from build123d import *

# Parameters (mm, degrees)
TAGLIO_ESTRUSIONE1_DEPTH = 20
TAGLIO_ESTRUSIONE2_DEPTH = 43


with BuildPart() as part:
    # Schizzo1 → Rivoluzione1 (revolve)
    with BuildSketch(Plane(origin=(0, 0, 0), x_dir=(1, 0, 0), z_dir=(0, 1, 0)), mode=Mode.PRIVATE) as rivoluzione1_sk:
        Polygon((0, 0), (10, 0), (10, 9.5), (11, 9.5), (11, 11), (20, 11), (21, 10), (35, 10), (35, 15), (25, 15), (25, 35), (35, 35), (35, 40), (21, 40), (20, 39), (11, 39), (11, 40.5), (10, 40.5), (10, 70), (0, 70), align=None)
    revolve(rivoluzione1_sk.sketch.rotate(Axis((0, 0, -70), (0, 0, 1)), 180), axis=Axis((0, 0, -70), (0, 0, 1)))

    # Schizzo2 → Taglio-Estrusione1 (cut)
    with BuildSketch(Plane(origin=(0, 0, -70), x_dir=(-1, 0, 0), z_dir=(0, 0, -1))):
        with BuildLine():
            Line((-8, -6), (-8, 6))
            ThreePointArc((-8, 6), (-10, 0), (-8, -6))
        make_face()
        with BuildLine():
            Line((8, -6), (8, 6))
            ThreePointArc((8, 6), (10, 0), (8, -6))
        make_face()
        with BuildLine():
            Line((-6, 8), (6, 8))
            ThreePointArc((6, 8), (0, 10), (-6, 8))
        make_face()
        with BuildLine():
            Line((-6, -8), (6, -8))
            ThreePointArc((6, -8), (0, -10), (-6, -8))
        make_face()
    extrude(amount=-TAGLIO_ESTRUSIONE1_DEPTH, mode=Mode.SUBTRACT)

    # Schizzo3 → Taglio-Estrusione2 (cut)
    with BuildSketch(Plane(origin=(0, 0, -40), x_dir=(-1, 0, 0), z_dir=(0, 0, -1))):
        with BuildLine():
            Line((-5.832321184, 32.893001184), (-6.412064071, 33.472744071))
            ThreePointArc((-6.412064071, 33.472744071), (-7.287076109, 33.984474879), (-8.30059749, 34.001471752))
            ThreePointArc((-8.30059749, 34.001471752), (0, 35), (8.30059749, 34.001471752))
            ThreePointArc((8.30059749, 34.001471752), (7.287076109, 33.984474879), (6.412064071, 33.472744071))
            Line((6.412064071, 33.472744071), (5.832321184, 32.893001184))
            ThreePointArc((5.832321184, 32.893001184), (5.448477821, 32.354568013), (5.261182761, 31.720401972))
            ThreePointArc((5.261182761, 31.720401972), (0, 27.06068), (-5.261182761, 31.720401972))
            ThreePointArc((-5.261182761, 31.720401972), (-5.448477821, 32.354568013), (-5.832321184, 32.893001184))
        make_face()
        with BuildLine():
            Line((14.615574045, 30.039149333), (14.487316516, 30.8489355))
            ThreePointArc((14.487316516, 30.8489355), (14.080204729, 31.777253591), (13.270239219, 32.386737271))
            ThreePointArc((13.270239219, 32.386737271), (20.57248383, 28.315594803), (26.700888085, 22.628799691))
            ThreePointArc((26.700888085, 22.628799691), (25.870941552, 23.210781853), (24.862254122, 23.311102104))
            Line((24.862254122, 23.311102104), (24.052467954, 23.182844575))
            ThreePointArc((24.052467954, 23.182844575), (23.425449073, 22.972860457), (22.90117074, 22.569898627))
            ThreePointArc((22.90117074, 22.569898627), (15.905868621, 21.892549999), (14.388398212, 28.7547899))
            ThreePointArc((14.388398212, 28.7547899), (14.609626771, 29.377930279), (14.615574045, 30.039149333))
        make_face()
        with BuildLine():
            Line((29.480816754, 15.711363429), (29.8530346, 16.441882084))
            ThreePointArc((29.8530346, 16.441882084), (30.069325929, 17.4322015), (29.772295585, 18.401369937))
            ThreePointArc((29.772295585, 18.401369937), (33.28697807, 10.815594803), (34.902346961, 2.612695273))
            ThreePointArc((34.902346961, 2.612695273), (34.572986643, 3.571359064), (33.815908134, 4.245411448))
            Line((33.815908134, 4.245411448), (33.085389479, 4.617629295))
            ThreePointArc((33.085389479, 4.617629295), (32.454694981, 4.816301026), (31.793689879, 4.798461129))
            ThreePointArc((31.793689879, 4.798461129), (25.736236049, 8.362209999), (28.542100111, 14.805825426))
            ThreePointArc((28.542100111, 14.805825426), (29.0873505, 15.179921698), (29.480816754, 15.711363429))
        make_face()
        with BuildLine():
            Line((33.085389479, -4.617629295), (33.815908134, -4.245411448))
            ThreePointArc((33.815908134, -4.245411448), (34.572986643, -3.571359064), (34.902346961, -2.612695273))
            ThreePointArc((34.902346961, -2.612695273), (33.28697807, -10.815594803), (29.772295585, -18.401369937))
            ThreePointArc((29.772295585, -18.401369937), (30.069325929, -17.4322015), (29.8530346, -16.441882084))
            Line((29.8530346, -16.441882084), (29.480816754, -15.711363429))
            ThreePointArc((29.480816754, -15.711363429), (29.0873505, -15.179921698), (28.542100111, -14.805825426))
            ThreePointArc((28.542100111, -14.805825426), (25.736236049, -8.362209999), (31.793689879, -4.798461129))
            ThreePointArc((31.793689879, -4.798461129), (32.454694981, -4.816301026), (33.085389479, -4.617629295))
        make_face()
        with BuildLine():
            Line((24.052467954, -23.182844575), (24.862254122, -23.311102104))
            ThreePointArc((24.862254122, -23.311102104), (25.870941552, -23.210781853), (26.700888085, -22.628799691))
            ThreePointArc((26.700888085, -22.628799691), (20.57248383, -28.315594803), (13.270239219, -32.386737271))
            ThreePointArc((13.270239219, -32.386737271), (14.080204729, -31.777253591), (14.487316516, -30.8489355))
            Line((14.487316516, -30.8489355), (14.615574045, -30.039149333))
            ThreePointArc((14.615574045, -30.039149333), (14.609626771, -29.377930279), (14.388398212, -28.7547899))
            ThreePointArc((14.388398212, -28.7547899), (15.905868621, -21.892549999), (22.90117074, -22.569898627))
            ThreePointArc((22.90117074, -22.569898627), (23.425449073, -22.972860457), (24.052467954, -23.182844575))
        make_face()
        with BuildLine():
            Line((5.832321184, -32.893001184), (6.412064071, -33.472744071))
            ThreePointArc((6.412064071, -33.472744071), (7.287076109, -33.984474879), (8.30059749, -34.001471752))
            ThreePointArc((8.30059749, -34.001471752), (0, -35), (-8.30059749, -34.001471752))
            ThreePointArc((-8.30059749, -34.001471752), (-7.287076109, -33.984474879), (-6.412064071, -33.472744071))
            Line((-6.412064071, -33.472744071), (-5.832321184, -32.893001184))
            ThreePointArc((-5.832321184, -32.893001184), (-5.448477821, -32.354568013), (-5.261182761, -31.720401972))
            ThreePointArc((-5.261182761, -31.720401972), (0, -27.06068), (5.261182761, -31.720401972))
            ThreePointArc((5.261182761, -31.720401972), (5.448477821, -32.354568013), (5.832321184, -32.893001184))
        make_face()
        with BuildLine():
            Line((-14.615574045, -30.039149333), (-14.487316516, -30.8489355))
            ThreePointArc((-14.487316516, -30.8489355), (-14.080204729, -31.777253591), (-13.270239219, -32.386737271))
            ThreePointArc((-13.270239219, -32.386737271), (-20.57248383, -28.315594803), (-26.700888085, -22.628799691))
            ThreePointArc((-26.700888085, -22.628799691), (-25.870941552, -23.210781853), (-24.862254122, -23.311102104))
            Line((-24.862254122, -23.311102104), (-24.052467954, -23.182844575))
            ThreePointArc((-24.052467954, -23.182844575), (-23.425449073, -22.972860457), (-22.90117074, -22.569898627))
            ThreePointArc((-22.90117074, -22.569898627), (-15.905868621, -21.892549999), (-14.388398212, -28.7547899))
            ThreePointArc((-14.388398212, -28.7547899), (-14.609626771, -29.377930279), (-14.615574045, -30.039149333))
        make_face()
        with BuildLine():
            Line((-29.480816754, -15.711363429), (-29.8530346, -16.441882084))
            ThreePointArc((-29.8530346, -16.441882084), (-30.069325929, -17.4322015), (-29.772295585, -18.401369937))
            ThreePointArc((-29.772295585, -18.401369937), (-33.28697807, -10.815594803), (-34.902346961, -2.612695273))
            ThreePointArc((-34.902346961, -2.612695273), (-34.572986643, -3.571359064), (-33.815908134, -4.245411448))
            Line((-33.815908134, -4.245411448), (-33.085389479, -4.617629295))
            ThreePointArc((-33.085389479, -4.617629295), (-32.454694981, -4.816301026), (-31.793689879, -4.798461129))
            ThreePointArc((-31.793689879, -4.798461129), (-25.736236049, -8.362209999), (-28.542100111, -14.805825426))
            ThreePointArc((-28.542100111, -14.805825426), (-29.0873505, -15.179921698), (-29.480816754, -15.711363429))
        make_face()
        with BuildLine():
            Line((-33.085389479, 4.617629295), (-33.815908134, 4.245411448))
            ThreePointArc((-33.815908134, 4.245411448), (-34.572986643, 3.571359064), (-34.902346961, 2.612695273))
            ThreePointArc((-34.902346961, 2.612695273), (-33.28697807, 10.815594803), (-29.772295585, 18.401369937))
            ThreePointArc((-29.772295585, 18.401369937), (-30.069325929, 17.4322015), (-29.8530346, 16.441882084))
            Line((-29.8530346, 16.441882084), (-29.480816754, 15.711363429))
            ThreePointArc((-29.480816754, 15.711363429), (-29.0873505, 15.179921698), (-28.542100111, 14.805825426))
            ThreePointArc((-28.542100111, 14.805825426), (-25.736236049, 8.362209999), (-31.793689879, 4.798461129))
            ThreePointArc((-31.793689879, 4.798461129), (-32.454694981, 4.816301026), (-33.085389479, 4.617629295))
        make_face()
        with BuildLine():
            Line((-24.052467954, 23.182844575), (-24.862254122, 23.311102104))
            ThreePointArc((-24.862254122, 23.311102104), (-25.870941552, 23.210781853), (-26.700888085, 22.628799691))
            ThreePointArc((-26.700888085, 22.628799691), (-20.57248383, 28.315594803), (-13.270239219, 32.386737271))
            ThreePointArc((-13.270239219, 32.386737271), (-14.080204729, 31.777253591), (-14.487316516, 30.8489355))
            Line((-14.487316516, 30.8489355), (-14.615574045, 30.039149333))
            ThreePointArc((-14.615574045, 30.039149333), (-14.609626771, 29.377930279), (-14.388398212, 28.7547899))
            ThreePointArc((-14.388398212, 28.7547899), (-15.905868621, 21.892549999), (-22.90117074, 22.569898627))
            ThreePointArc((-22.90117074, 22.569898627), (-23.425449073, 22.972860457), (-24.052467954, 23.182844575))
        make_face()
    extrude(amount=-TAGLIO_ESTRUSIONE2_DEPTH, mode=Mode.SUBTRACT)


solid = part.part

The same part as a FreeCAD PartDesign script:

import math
import FreeCAD as App
import Part
import Sketcher
Q = App.Units.Quantity


def add_polygon(sketch, points):
    """Adds a closed chain of lines whose ends are joined by coincident constraints."""
    first, n = sketch.GeometryCount, len(points)
    for a, b in zip(points, points[1:] + points[:1]):
        sketch.addGeometry(Part.LineSegment(App.Vector(*a, 0), App.Vector(*b, 0)), False)
    for i in range(n):
        sketch.addConstraint(Sketcher.Constraint("Coincident", first + i, 2, first + (i + 1) % n, 1))

doc = App.newDocument("Part")
params = doc.addObject("Spreadsheet::Sheet", "Params")
for row, (alias, value) in enumerate([
    ("sketch1_width", "10 mm"),
    ("sketch1_width2", "1 mm"),
    ("sketch1_width3", "9 mm"),
    ("sketch1_width4", "14 mm"),
    ("sketch1_height", "5 mm"),
    ("revolution_angle", "360 deg"),
    ("sketch2_radius", "10 mm"),
    ("sketch2_width", "12 mm"),
    ("pocket1_length", "20 mm"),
    ("sketch3_radius", "2 mm"),
    ("sketch3_radius2", "35 mm"),
    ("sketch3_radius3", "5.3 mm"),
    ("pocket2_length", "43 mm"),
], start=1):
    params.set(f"A{row}", alias)
    params.set(f"B{row}", "=" + value)
    params.setAlias(f"B{row}", alias)

body = doc.addObject("PartDesign::Body", "Body")

sketch1 = body.newObject("Sketcher::SketchObject", "Sketch")
sketch1.AttachmentSupport = (doc.getObject("XZ_Plane"), [""])
sketch1.MapMode = "FlatFace"
add_polygon(sketch1, [(0, 0), (10, 0), (10, -9.5), (11, -9.5), (11, -11), (20, -11), (21, -10), (35, -10), (35, -15), (25, -15), (25, -35), (35, -35), (35, -40), (21, -40), (20, -39), (11, -39), (11, -40.5), (10, -40.5), (10, -70), (0, -70)])
sketch1.addConstraint([
    Sketcher.Constraint("Horizontal", 0),
    Sketcher.Constraint("Vertical", 1),
    Sketcher.Constraint("Horizontal", 2),
    Sketcher.Constraint("Vertical", 3),
    Sketcher.Constraint("Horizontal", 4),
    Sketcher.Constraint("Horizontal", 6),
    Sketcher.Constraint("Vertical", 7),
    Sketcher.Constraint("Horizontal", 8),
    Sketcher.Constraint("Vertical", 9),
    Sketcher.Constraint("Horizontal", 10),
    Sketcher.Constraint("Vertical", 11),
    Sketcher.Constraint("Horizontal", 12),
    Sketcher.Constraint("Horizontal", 14),
    Sketcher.Constraint("Vertical", 15),
    Sketcher.Constraint("Horizontal", 16),
    Sketcher.Constraint("Vertical", 17),
    Sketcher.Constraint("Horizontal", 18),
    Sketcher.Constraint("Vertical", 19),
    Sketcher.Constraint("Coincident", 19, 2, -1, 1),
    Sketcher.Constraint("Perpendicular", 5, 13),
    Sketcher.Constraint("Vertical", 7, 2, 10, 2),
    Sketcher.Constraint("Vertical", 5, 2, 12, 2),
    Sketcher.Constraint("Vertical", 4, 2, 13, 2),
    Sketcher.Constraint("Vertical", 3, 2, 14, 2),
    Sketcher.Constraint("Vertical", 1, 2, 16, 2),
    Sketcher.Constraint("Equal", 0, 8),
    Sketcher.Constraint("Equal", 7, 11),
    Sketcher.Constraint("Equal", 3, 15),
    Sketcher.Constraint("Equal", 5, 13),
    Sketcher.Constraint("DistanceX", 0, 1, 0, 2, 10.0),
    Sketcher.Constraint("DistanceX", 2, 1, 2, 2, 1.0),
    Sketcher.Constraint("DistanceX", 4, 1, 4, 2, 9.0),
    Sketcher.Constraint("DistanceX", 6, 1, 6, 2, 14.0),
    Sketcher.Constraint("DistanceY", 7, 2, 7, 1, 5.0),
    Sketcher.Constraint("DistanceY", 9, 2, 9, 1, 20.0),
    Sketcher.Constraint("DistanceY", 19, 1, 19, 2, 70.0),
    Sketcher.Constraint("DistanceY", 1, 2, 1, 1, 9.5),
    Sketcher.Constraint("DistanceY", 3, 2, 3, 1, 1.5),
    Sketcher.Constraint("DistanceY", 17, 2, 17, 1, 29.5),
])
sketch1.setExpression("Constraints[49]", "Params.sketch1_width")
sketch1.setExpression("Constraints[50]", "Params.sketch1_width2")
sketch1.setExpression("Constraints[51]", "Params.sketch1_width3")
sketch1.setExpression("Constraints[52]", "Params.sketch1_width4")
sketch1.setExpression("Constraints[53]", "Params.sketch1_height")
revolution = body.newObject("PartDesign::Revolution", "Revolution")
revolution.Profile = sketch1
revolution.ReferenceAxis = (sketch1, ["V_Axis"])
revolution.setExpression("Angle", "Params.revolution_angle")

sketch2 = body.newObject("Sketcher::SketchObject", "Sketch001")
sketch2.AttachmentSupport = (doc.getObject("XY_Plane"), [""])
sketch2.MapMode = "FlatFace"
sketch2.AttachmentOffset = App.Placement(App.Vector(0, 0, -70), App.Rotation())
sketch2.addGeometry([
    Part.LineSegment(App.Vector(8, -6, 0), App.Vector(8, 6, 0)),
    Part.ArcOfCircle(Part.Circle(App.Vector(0, 0, 0), App.Vector(0, 0, 1), 10), math.radians(-37), math.radians(37)),
    Part.LineSegment(App.Vector(-8, 6, 0), App.Vector(-8, -6, 0)),
    Part.ArcOfCircle(Part.Circle(App.Vector(0, 0, 0), App.Vector(0, 0, 1), 10), math.radians(143), math.radians(217)),
    Part.LineSegment(App.Vector(6, 8, 0), App.Vector(-6, 8, 0)),
    Part.ArcOfCircle(Part.Circle(App.Vector(0, 0, 0), App.Vector(0, 0, 1), 10), math.radians(53), math.radians(127)),
    Part.LineSegment(App.Vector(-6, -8, 0), App.Vector(6, -8, 0)),
    Part.ArcOfCircle(Part.Circle(App.Vector(0, 0, 0), App.Vector(0, 0, 1), 10), math.radians(-127), math.radians(-53)),
], False)
sketch2.addConstraint([
    Sketcher.Constraint("Coincident", 0, 1, 1, 1),
    Sketcher.Constraint("Coincident", 1, 2, 0, 2),
    Sketcher.Constraint("Coincident", 2, 1, 3, 1),
    Sketcher.Constraint("Coincident", 3, 2, 2, 2),
    Sketcher.Constraint("Coincident", 4, 1, 5, 1),
    Sketcher.Constraint("Coincident", 5, 2, 4, 2),
    Sketcher.Constraint("Coincident", 6, 1, 7, 1),
    Sketcher.Constraint("Coincident", 7, 2, 6, 2),
    Sketcher.Constraint("Vertical", 0),
    Sketcher.Constraint("Vertical", 2),
    Sketcher.Constraint("Horizontal", 4),
    Sketcher.Constraint("Horizontal", 6),
    Sketcher.Constraint("Coincident", 1, 3, -1, 1),
    Sketcher.Constraint("Coincident", 3, 3, -1, 1),
    Sketcher.Constraint("Coincident", 5, 3, -1, 1),
    Sketcher.Constraint("Coincident", 7, 3, -1, 1),
    Sketcher.Constraint("Equal", 1, 3),
    Sketcher.Constraint("Equal", 3, 5),
    Sketcher.Constraint("Equal", 5, 7),
    Sketcher.Constraint("Horizontal", 1, 2, 2, 1),
    Sketcher.Constraint("Vertical", 5, 2, 6, 1),
    Sketcher.Constraint("Equal", 6, 0),
    Sketcher.Constraint("Radius", 1, 10.0),
    Sketcher.Constraint("DistanceX", 4, 2, 4, 1, 12.0),
])
sketch2.setExpression("Constraints[22]", "Params.sketch2_radius")
sketch2.setExpression("Constraints[23]", "Params.sketch2_width")
pocket1 = body.newObject("PartDesign::Pocket", "Pocket")
pocket1.Profile = sketch2
pocket1.setExpression("Length", "Params.pocket1_length")
pocket1.Reversed = True

sketch3 = body.newObject("Sketcher::SketchObject", "Sketch002")
sketch3.AttachmentSupport = (doc.getObject("XY_Plane"), [""])
sketch3.MapMode = "FlatFace"
sketch3.AttachmentOffset = App.Placement(App.Vector(0, 0, -40), App.Rotation())
sketch3.addGeometry([
    Part.LineSegment(App.Vector(6.4, 33.5, 0), App.Vector(5.8, 32.9, 0)),
    Part.ArcOfCircle(Part.Circle(App.Vector(7.2, 31.5, 0), App.Vector(0, 0, 1), 2), math.radians(135), math.radians(173)),
    Part.ArcOfCircle(Part.Circle(App.Vector(0, 32.4, 0), App.Vector(0, 0, 1), 5.3), math.radians(-173), math.radians(-7)),
    Part.ArcOfCircle(Part.Circle(App.Vector(-7.2, 31.5, 0), App.Vector(0, 0, 1), 2), math.radians(7), math.radians(45)),
    Part.LineSegment(App.Vector(-5.8, 32.9, 0), App.Vector(-6.4, 33.5, 0)),
    Part.ArcOfCircle(Part.Circle(App.Vector(-7.8, 32.1, 0), App.Vector(0, 0, 1), 2), math.radians(45), math.radians(104)),
    Part.ArcOfCircle(Part.Circle(App.Vector(0, 0, 0), App.Vector(0, 0, 1), 35), math.radians(76), math.radians(104)),
    Part.ArcOfCircle(Part.Circle(App.Vector(7.8, 32.1, 0), App.Vector(0, 0, 1), 2), math.radians(76), math.radians(135)),
    Part.LineSegment(App.Vector(-14.5, 30.8, 0), App.Vector(-14.6, 30, 0)),
    Part.ArcOfCircle(Part.Circle(App.Vector(-12.6, 29.7, 0), App.Vector(0, 0, 1), 2), math.radians(171), math.radians(209)),
    Part.ArcOfCircle(Part.Circle(App.Vector(-19, 26.2, 0), App.Vector(0, 0, 1), 5.3), math.radians(-137), math.radians(29)),
    Part.ArcOfCircle(Part.Circle(App.Vector(-24.4, 21.2, 0), App.Vector(0, 0, 1), 2), math.radians(43), math.radians(81)),
    Part.LineSegment(App.Vector(-24.1, 23.2, 0), App.Vector(-24.9, 23.3, 0)),
    Part.ArcOfCircle(Part.Circle(App.Vector(-25.2, 21.3, 0), App.Vector(0, 0, 1), 2), math.radians(81), math.radians(140)),
    Part.ArcOfCircle(Part.Circle(App.Vector(0, 0, 0), App.Vector(0, 0, 1), 35), math.radians(112), math.radians(140)),
    Part.ArcOfCircle(Part.Circle(App.Vector(-12.5, 30.5, 0), App.Vector(0, 0, 1), 2), math.radians(112), math.radians(171)),
    Part.LineSegment(App.Vector(-29.9, 16.4, 0), App.Vector(-29.5, 15.7, 0)),
    Part.ArcOfCircle(Part.Circle(App.Vector(-27.7, 16.6, 0), App.Vector(0, 0, 1), 2), math.radians(-153), math.radians(-115)),
    Part.ArcOfCircle(Part.Circle(App.Vector(-30.8, 10, 0), App.Vector(0, 0, 1), 5.3), math.radians(-101), math.radians(65)),
    Part.ArcOfCircle(Part.Circle(App.Vector(-32.2, 2.8, 0), App.Vector(0, 0, 1), 2), math.radians(79), math.radians(117)),
    Part.LineSegment(App.Vector(-33.1, 4.6, 0), App.Vector(-33.8, 4.2, 0)),
    Part.ArcOfCircle(Part.Circle(App.Vector(-32.9, 2.5, 0), App.Vector(0, 0, 1), 2), math.radians(117), math.radians(176)),
    Part.ArcOfCircle(Part.Circle(App.Vector(0, 0, 0), App.Vector(0, 0, 1), 35), math.radians(148), math.radians(176)),
    Part.ArcOfCircle(Part.Circle(App.Vector(-28.1, 17.3, 0), App.Vector(0, 0, 1), 2), math.radians(148), math.radians(207)),
    Part.LineSegment(App.Vector(-33.8, -4.2, 0), App.Vector(-33.1, -4.6, 0)),
    Part.ArcOfCircle(Part.Circle(App.Vector(-32.2, -2.8, 0), App.Vector(0, 0, 1), 2), math.radians(-117), math.radians(-79)),
    Part.ArcOfCircle(Part.Circle(App.Vector(-30.8, -10, 0), App.Vector(0, 0, 1), 5.3), math.radians(-65), math.radians(101)),
    Part.ArcOfCircle(Part.Circle(App.Vector(-27.7, -16.6, 0), App.Vector(0, 0, 1), 2), math.radians(115), math.radians(153)),
    Part.LineSegment(App.Vector(-29.5, -15.7, 0), App.Vector(-29.9, -16.4, 0)),
    Part.ArcOfCircle(Part.Circle(App.Vector(-28.1, -17.3, 0), App.Vector(0, 0, 1), 2), math.radians(153), math.radians(212)),
    Part.ArcOfCircle(Part.Circle(App.Vector(0, 0, 0), App.Vector(0, 0, 1), 35), math.radians(-176), math.radians(-148)),
    Part.ArcOfCircle(Part.Circle(App.Vector(-32.9, -2.5, 0), App.Vector(0, 0, 1), 2), math.radians(-176), math.radians(-117)),
    Part.LineSegment(App.Vector(-24.9, -23.3, 0), App.Vector(-24.1, -23.2, 0)),
    Part.ArcOfCircle(Part.Circle(App.Vector(-24.4, -21.2, 0), App.Vector(0, 0, 1), 2), math.radians(-81), math.radians(-43)),
    Part.ArcOfCircle(Part.Circle(App.Vector(-19, -26.2, 0), App.Vector(0, 0, 1), 5.3), math.radians(-29), math.radians(137)),
    Part.ArcOfCircle(Part.Circle(App.Vector(-12.6, -29.7, 0), App.Vector(0, 0, 1), 2), math.radians(151), math.radians(189)),
    Part.LineSegment(App.Vector(-14.6, -30, 0), App.Vector(-14.5, -30.8, 0)),
    Part.ArcOfCircle(Part.Circle(App.Vector(-12.5, -30.5, 0), App.Vector(0, 0, 1), 2), math.radians(-171), math.radians(-112)),
    Part.ArcOfCircle(Part.Circle(App.Vector(0, 0, 0), App.Vector(0, 0, 1), 35), math.radians(-140), math.radians(-112)),
    Part.ArcOfCircle(Part.Circle(App.Vector(-25.2, -21.3, 0), App.Vector(0, 0, 1), 2), math.radians(-140), math.radians(-81)),
    Part.LineSegment(App.Vector(-6.4, -33.5, 0), App.Vector(-5.8, -32.9, 0)),
    Part.ArcOfCircle(Part.Circle(App.Vector(-7.2, -31.5, 0), App.Vector(0, 0, 1), 2), math.radians(-45), math.radians(-7)),
    Part.ArcOfCircle(Part.Circle(App.Vector(0, -32.4, 0), App.Vector(0, 0, 1), 5.3), math.radians(7), math.radians(173)),
    Part.ArcOfCircle(Part.Circle(App.Vector(7.2, -31.5, 0), App.Vector(0, 0, 1), 2), math.radians(-173), math.radians(-135)),
    Part.LineSegment(App.Vector(5.8, -32.9, 0), App.Vector(6.4, -33.5, 0)),
    Part.ArcOfCircle(Part.Circle(App.Vector(7.8, -32.1, 0), App.Vector(0, 0, 1), 2), math.radians(-135), math.radians(-76)),
    Part.ArcOfCircle(Part.Circle(App.Vector(0, 0, 0), App.Vector(0, 0, 1), 35), math.radians(-104), math.radians(-76)),
    Part.ArcOfCircle(Part.Circle(App.Vector(-7.8, -32.1, 0), App.Vector(0, 0, 1), 2), math.radians(-104), math.radians(-45)),
    Part.LineSegment(App.Vector(14.5, -30.8, 0), App.Vector(14.6, -30, 0)),
    Part.ArcOfCircle(Part.Circle(App.Vector(12.6, -29.7, 0), App.Vector(0, 0, 1), 2), math.radians(-9), math.radians(29)),
    Part.ArcOfCircle(Part.Circle(App.Vector(19, -26.2, 0), App.Vector(0, 0, 1), 5.3), math.radians(43), math.radians(209)),
    Part.ArcOfCircle(Part.Circle(App.Vector(24.4, -21.2, 0), App.Vector(0, 0, 1), 2), math.radians(-137), math.radians(-99)),
    Part.LineSegment(App.Vector(24.1, -23.2, 0), App.Vector(24.9, -23.3, 0)),
    Part.ArcOfCircle(Part.Circle(App.Vector(25.2, -21.3, 0), App.Vector(0, 0, 1), 2), math.radians(-99), math.radians(-40)),
    Part.ArcOfCircle(Part.Circle(App.Vector(0, 0, 0), App.Vector(0, 0, 1), 35), math.radians(-68), math.radians(-40)),
    Part.ArcOfCircle(Part.Circle(App.Vector(12.5, -30.5, 0), App.Vector(0, 0, 1), 2), math.radians(-68), math.radians(-9)),
    Part.LineSegment(App.Vector(29.9, -16.4, 0), App.Vector(29.5, -15.7, 0)),
    Part.ArcOfCircle(Part.Circle(App.Vector(27.7, -16.6, 0), App.Vector(0, 0, 1), 2), math.radians(27), math.radians(65)),
    Part.ArcOfCircle(Part.Circle(App.Vector(30.8, -10, 0), App.Vector(0, 0, 1), 5.3), math.radians(79), math.radians(245)),
    Part.ArcOfCircle(Part.Circle(App.Vector(32.2, -2.8, 0), App.Vector(0, 0, 1), 2), math.radians(-101), math.radians(-63)),
    Part.LineSegment(App.Vector(33.1, -4.6, 0), App.Vector(33.8, -4.2, 0)),
    Part.ArcOfCircle(Part.Circle(App.Vector(32.9, -2.5, 0), App.Vector(0, 0, 1), 2), math.radians(-63), math.radians(-4)),
    Part.ArcOfCircle(Part.Circle(App.Vector(0, 0, 0), App.Vector(0, 0, 1), 35), math.radians(-32), math.radians(-4)),
    Part.ArcOfCircle(Part.Circle(App.Vector(28.1, -17.3, 0), App.Vector(0, 0, 1), 2), math.radians(-32), math.radians(27)),
    Part.LineSegment(App.Vector(33.8, 4.2, 0), App.Vector(33.1, 4.6, 0)),
    Part.ArcOfCircle(Part.Circle(App.Vector(32.2, 2.8, 0), App.Vector(0, 0, 1), 2), math.radians(63), math.radians(101)),
    Part.ArcOfCircle(Part.Circle(App.Vector(30.8, 10, 0), App.Vector(0, 0, 1), 5.3), math.radians(115), math.radians(281)),
    Part.ArcOfCircle(Part.Circle(App.Vector(27.7, 16.6, 0), App.Vector(0, 0, 1), 2), math.radians(-65), math.radians(-27)),
    Part.LineSegment(App.Vector(29.5, 15.7, 0), App.Vector(29.9, 16.4, 0)),
    Part.ArcOfCircle(Part.Circle(App.Vector(28.1, 17.3, 0), App.Vector(0, 0, 1), 2), math.radians(-27), math.radians(32)),
    Part.ArcOfCircle(Part.Circle(App.Vector(0, 0, 0), App.Vector(0, 0, 1), 35), math.radians(4), math.radians(32)),
    Part.ArcOfCircle(Part.Circle(App.Vector(32.9, 2.5, 0), App.Vector(0, 0, 1), 2), math.radians(4), math.radians(63)),
    Part.LineSegment(App.Vector(24.9, 23.3, 0), App.Vector(24.1, 23.2, 0)),
    Part.ArcOfCircle(Part.Circle(App.Vector(24.4, 21.2, 0), App.Vector(0, 0, 1), 2), math.radians(99), math.radians(137)),
    Part.ArcOfCircle(Part.Circle(App.Vector(19, 26.2, 0), App.Vector(0, 0, 1), 5.3), math.radians(151), math.radians(317)),
    Part.ArcOfCircle(Part.Circle(App.Vector(12.6, 29.7, 0), App.Vector(0, 0, 1), 2), math.radians(-29), math.radians(9)),
    Part.LineSegment(App.Vector(14.6, 30, 0), App.Vector(14.5, 30.8, 0)),
    Part.ArcOfCircle(Part.Circle(App.Vector(12.5, 30.5, 0), App.Vector(0, 0, 1), 2), math.radians(9), math.radians(68)),
    Part.ArcOfCircle(Part.Circle(App.Vector(0, 0, 0), App.Vector(0, 0, 1), 35), math.radians(40), math.radians(68)),
    Part.ArcOfCircle(Part.Circle(App.Vector(25.2, 21.3, 0), App.Vector(0, 0, 1), 2), math.radians(40), math.radians(99)),
], False)
sketch3.addConstraint([
    Sketcher.Constraint("Tangent", 0, 2, 1, 1),
    Sketcher.Constraint("Tangent", 1, 2, 2, 2),
    Sketcher.Constraint("Tangent", 2, 1, 3, 1),
    Sketcher.Constraint("Tangent", 3, 2, 4, 1),
    Sketcher.Constraint("Tangent", 4, 2, 5, 1),
    Sketcher.Constraint("Tangent", 5, 2, 6, 2),
    Sketcher.Constraint("Tangent", 6, 1, 7, 1),
    Sketcher.Constraint("Tangent", 7, 2, 0, 1),
    Sketcher.Constraint("Tangent", 8, 2, 9, 1),
    Sketcher.Constraint("Tangent", 9, 2, 10, 2),
    Sketcher.Constraint("Tangent", 10, 1, 11, 1),
    Sketcher.Constraint("Tangent", 11, 2, 12, 1),
    Sketcher.Constraint("Tangent", 12, 2, 13, 1),
    Sketcher.Constraint("Tangent", 13, 2, 14, 2),
    Sketcher.Constraint("Tangent", 14, 1, 15, 1),
    Sketcher.Constraint("Tangent", 15, 2, 8, 1),
    Sketcher.Constraint("Tangent", 16, 2, 17, 1),
    Sketcher.Constraint("Tangent", 17, 2, 18, 2),
    Sketcher.Constraint("Tangent", 18, 1, 19, 1),
    Sketcher.Constraint("Tangent", 19, 2, 20, 1),
    Sketcher.Constraint("Tangent", 20, 2, 21, 1),
    Sketcher.Constraint("Tangent", 21, 2, 22, 2),
    Sketcher.Constraint("Tangent", 22, 1, 23, 1),
    Sketcher.Constraint("Tangent", 23, 2, 16, 1),
    Sketcher.Constraint("Tangent", 24, 2, 25, 1),
    Sketcher.Constraint("Tangent", 25, 2, 26, 2),
    Sketcher.Constraint("Tangent", 26, 1, 27, 1),
    Sketcher.Constraint("Tangent", 27, 2, 28, 1),
    Sketcher.Constraint("Tangent", 28, 2, 29, 1),
    Sketcher.Constraint("Tangent", 29, 2, 30, 2),
    Sketcher.Constraint("Tangent", 30, 1, 31, 1),
    Sketcher.Constraint("Tangent", 31, 2, 24, 1),
    Sketcher.Constraint("Tangent", 32, 2, 33, 1),
    Sketcher.Constraint("Tangent", 33, 2, 34, 2),
    Sketcher.Constraint("Tangent", 34, 1, 35, 1),
    Sketcher.Constraint("Tangent", 35, 2, 36, 1),
    Sketcher.Constraint("Tangent", 36, 2, 37, 1),
    Sketcher.Constraint("Tangent", 37, 2, 38, 2),
    Sketcher.Constraint("Tangent", 38, 1, 39, 1),
    Sketcher.Constraint("Tangent", 39, 2, 32, 1),
    Sketcher.Constraint("Tangent", 40, 2, 41, 1),
    Sketcher.Constraint("Tangent", 41, 2, 42, 2),
    Sketcher.Constraint("Tangent", 42, 1, 43, 1),
    Sketcher.Constraint("Tangent", 43, 2, 44, 1),
    Sketcher.Constraint("Tangent", 44, 2, 45, 1),
    Sketcher.Constraint("Tangent", 45, 2, 46, 2),
    Sketcher.Constraint("Tangent", 46, 1, 47, 1),
    Sketcher.Constraint("Tangent", 47, 2, 40, 1),
    Sketcher.Constraint("Tangent", 48, 2, 49, 1),
    Sketcher.Constraint("Tangent", 49, 2, 50, 2),
    Sketcher.Constraint("Tangent", 50, 1, 51, 1),
    Sketcher.Constraint("Tangent", 51, 2, 52, 1),
    Sketcher.Constraint("Tangent", 52, 2, 53, 1),
    Sketcher.Constraint("Tangent", 53, 2, 54, 2),
    Sketcher.Constraint("Tangent", 54, 1, 55, 1),
    Sketcher.Constraint("Tangent", 55, 2, 48, 1),
    Sketcher.Constraint("Tangent", 56, 2, 57, 1),
    Sketcher.Constraint("Tangent", 57, 2, 58, 2),
    Sketcher.Constraint("Tangent", 58, 1, 59, 1),
    Sketcher.Constraint("Tangent", 59, 2, 60, 1),
    Sketcher.Constraint("Tangent", 60, 2, 61, 1),
    Sketcher.Constraint("Tangent", 61, 2, 62, 2),
    Sketcher.Constraint("Tangent", 62, 1, 63, 1),
    Sketcher.Constraint("Tangent", 63, 2, 56, 1),
    Sketcher.Constraint("Tangent", 64, 2, 65, 1),
    Sketcher.Constraint("Tangent", 65, 2, 66, 2),
    Sketcher.Constraint("Tangent", 66, 1, 67, 1),
    Sketcher.Constraint("Tangent", 67, 2, 68, 1),
    Sketcher.Constraint("Tangent", 68, 2, 69, 1),
    Sketcher.Constraint("Tangent", 69, 2, 70, 2),
    Sketcher.Constraint("Tangent", 70, 1, 71, 1),
    Sketcher.Constraint("Tangent", 71, 2, 64, 1),
    Sketcher.Constraint("Tangent", 72, 2, 73, 1),
    Sketcher.Constraint("Tangent", 73, 2, 74, 2),
    Sketcher.Constraint("Tangent", 74, 1, 75, 1),
    Sketcher.Constraint("Tangent", 75, 2, 76, 1),
    Sketcher.Constraint("Tangent", 76, 2, 77, 1),
    Sketcher.Constraint("Tangent", 77, 2, 78, 2),
    Sketcher.Constraint("Tangent", 78, 1, 79, 1),
    Sketcher.Constraint("Tangent", 79, 2, 72, 1),
    Sketcher.Constraint("Coincident", 6, 3, -1, 1),
    Sketcher.Constraint("Coincident", 14, 3, -1, 1),
    Sketcher.Constraint("Coincident", 22, 3, -1, 1),
    Sketcher.Constraint("Coincident", 30, 3, -1, 1),
    Sketcher.Constraint("Coincident", 38, 3, -1, 1),
    Sketcher.Constraint("Coincident", 46, 3, -1, 1),
    Sketcher.Constraint("Coincident", 54, 3, -1, 1),
    Sketcher.Constraint("Coincident", 62, 3, -1, 1),
    Sketcher.Constraint("Coincident", 70, 3, -1, 1),
    Sketcher.Constraint("Coincident", 78, 3, -1, 1),
    Sketcher.Constraint("Equal", 1, 3),
    Sketcher.Constraint("Equal", 3, 5),
    Sketcher.Constraint("Equal", 5, 7),
    Sketcher.Constraint("Equal", 7, 9),
    Sketcher.Constraint("Equal", 2, 10),
    Sketcher.Constraint("Equal", 9, 11),
    Sketcher.Constraint("Equal", 11, 13),
    Sketcher.Constraint("Equal", 6, 14),
    Sketcher.Constraint("Equal", 13, 15),
    Sketcher.Constraint("Equal", 15, 17),
    Sketcher.Constraint("Equal", 10, 18),
    Sketcher.Constraint("Equal", 17, 19),
    Sketcher.Constraint("Equal", 19, 21),
    Sketcher.Constraint("Equal", 14, 22),
    Sketcher.Constraint("Equal", 21, 23),
    Sketcher.Constraint("Equal", 23, 25),
    Sketcher.Constraint("Equal", 18, 26),
    Sketcher.Constraint("Equal", 25, 27),
    Sketcher.Constraint("Equal", 27, 29),
    Sketcher.Constraint("Equal", 22, 30),
    Sketcher.Constraint("Equal", 29, 31),
    Sketcher.Constraint("Equal", 31, 33),
    Sketcher.Constraint("Equal", 26, 34),
    Sketcher.Constraint("Equal", 33, 35),
    Sketcher.Constraint("Equal", 35, 37),
    Sketcher.Constraint("Equal", 30, 38),
    Sketcher.Constraint("Equal", 37, 39),
    Sketcher.Constraint("Equal", 39, 41),
    Sketcher.Constraint("Equal", 34, 42),
    Sketcher.Constraint("Equal", 41, 43),
    Sketcher.Constraint("Equal", 43, 45),
    Sketcher.Constraint("Equal", 38, 46),
    Sketcher.Constraint("Equal", 45, 47),
    Sketcher.Constraint("Equal", 47, 49),
    Sketcher.Constraint("Equal", 42, 50),
    Sketcher.Constraint("Equal", 49, 51),
    Sketcher.Constraint("Equal", 51, 53),
    Sketcher.Constraint("Equal", 46, 54),
    Sketcher.Constraint("Equal", 53, 55),
    Sketcher.Constraint("Equal", 55, 57),
    Sketcher.Constraint("Equal", 50, 58),
    Sketcher.Constraint("Equal", 57, 59),
    Sketcher.Constraint("Equal", 59, 61),
    Sketcher.Constraint("Equal", 54, 62),
    Sketcher.Constraint("Equal", 61, 63),
    Sketcher.Constraint("Equal", 63, 65),
    Sketcher.Constraint("Equal", 58, 66),
    Sketcher.Constraint("Equal", 65, 67),
    Sketcher.Constraint("Equal", 67, 69),
    Sketcher.Constraint("Equal", 62, 70),
    Sketcher.Constraint("Equal", 69, 71),
    Sketcher.Constraint("Equal", 71, 73),
    Sketcher.Constraint("Equal", 66, 74),
    Sketcher.Constraint("Equal", 73, 75),
    Sketcher.Constraint("Equal", 75, 77),
    Sketcher.Constraint("Equal", 70, 78),
    Sketcher.Constraint("Equal", 77, 79),
    Sketcher.Constraint("Symmetric", 1, 3, 41, 3, -1, 1),
    Sketcher.Constraint("Symmetric", 3, 3, 43, 3, -1, 1),
    Sketcher.Constraint("Symmetric", 9, 3, 49, 3, -1, 1),
    Sketcher.Constraint("Symmetric", 11, 3, 51, 3, -1, 1),
    Sketcher.Constraint("Symmetric", 17, 3, 57, 3, -1, 1),
    Sketcher.Constraint("Symmetric", 19, 3, 59, 3, -1, 1),
    Sketcher.Constraint("Symmetric", 25, 3, 65, 3, -1, 1),
    Sketcher.Constraint("Symmetric", 27, 3, 67, 3, -1, 1),
    Sketcher.Constraint("Symmetric", 33, 3, 73, 3, -1, 1),
    Sketcher.Constraint("Symmetric", 35, 3, 75, 3, -1, 1),
    Sketcher.Constraint("Symmetric", 1, 3, 3, 3, -2),
    Sketcher.Constraint("Symmetric", 35, 3, 49, 3, -2),
    Sketcher.Constraint("Symmetric", 33, 3, 51, 3, -2),
    Sketcher.Constraint("Symmetric", 27, 3, 57, 3, -2),
    Sketcher.Constraint("Symmetric", 25, 3, 59, 3, -2),
    Sketcher.Constraint("Perpendicular", 0, 4),
    Sketcher.Constraint("Perpendicular", 8, 12),
    Sketcher.Constraint("Perpendicular", 16, 20),
    Sketcher.Constraint("Perpendicular", 24, 28),
    Sketcher.Constraint("Perpendicular", 32, 36),
    Sketcher.Constraint("Perpendicular", 4, 40),
    Sketcher.Constraint("Perpendicular", 40, 44),
    Sketcher.Constraint("Perpendicular", 12, 48),
    Sketcher.Constraint("Perpendicular", 48, 52),
    Sketcher.Constraint("Perpendicular", 20, 56),
    Sketcher.Constraint("Perpendicular", 56, 60),
    Sketcher.Constraint("Perpendicular", 28, 64),
    Sketcher.Constraint("Perpendicular", 64, 68),
    Sketcher.Constraint("Perpendicular", 36, 72),
    Sketcher.Constraint("Perpendicular", 72, 76),
    Sketcher.Constraint("Horizontal", 5, 3, 7, 3),
    Sketcher.Constraint("Horizontal", 39, 3, 53, 3),
    Sketcher.Constraint("Horizontal", 31, 3, 61, 3),
    Sketcher.Constraint("Equal", 4, 8),
    Sketcher.Constraint("Equal", 8, 12),
    Sketcher.Constraint("Equal", 12, 16),
    Sketcher.Constraint("Equal", 16, 20),
    Sketcher.Constraint("Radius", 1, 2.0),
    Sketcher.Constraint("Radius", 6, 35.0),
    Sketcher.Constraint("Radius", 2, 5.3),
    Sketcher.Constraint("Angle", 8, Q("-99 deg")),
    Sketcher.Constraint("Angle", 16, Q("-63 deg")),
    Sketcher.Constraint("DistanceY", -1, 1, 18, 3, 10.0),
    Sketcher.Constraint("DistanceY", -1, 1, 0, 2, 32.893001),
    Sketcher.Constraint("DistanceY", -1, 1, 21, 3, 2.463398),
    Sketcher.Constraint("DistanceY", -1, 1, 1, 2, 31.720402),
    Sketcher.Constraint("DistanceX", 9, 2, -1, 1, 14.388398),
    Sketcher.Constraint("DistanceY", -1, 1, 10, 1, 22.569899),
])
sketch3.setExpression("Constraints[184]", "Params.sketch3_radius")
sketch3.setExpression("Constraints[185]", "Params.sketch3_radius2")
sketch3.setExpression("Constraints[186]", "Params.sketch3_radius3")
pocket2 = body.newObject("PartDesign::Pocket", "Pocket001")
pocket2.Profile = sketch3
pocket2.setExpression("Length", "Params.pocket2_length")
pocket2.Reversed = True

doc.recompute()
